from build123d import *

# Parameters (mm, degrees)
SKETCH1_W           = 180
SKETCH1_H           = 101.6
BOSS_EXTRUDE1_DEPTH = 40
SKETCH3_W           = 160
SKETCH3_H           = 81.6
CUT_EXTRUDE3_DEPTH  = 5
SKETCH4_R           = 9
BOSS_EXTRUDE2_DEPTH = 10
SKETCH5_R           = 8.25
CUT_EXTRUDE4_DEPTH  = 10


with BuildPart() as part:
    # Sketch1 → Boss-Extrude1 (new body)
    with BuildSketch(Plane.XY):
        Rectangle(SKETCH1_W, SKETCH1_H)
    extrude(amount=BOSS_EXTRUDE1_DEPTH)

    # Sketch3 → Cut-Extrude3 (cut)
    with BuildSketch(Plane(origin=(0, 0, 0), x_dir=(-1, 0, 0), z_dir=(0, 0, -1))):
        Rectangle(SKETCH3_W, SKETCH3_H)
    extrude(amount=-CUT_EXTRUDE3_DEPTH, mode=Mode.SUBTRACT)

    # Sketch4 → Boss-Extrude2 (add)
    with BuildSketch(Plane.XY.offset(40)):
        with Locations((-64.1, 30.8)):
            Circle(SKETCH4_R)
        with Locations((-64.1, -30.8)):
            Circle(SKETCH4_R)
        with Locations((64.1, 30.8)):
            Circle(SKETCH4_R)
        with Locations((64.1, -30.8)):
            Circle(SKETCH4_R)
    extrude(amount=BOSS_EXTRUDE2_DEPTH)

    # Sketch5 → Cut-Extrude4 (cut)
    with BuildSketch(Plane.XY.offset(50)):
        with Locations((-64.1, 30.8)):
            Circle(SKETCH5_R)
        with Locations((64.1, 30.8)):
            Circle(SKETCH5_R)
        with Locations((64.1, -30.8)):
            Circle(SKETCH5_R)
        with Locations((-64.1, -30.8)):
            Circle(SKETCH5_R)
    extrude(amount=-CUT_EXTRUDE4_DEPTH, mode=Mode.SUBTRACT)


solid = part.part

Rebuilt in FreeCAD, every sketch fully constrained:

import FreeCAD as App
import Part
import Sketcher
from FreeCAD import Vector
Q = App.Units.Quantity

doc = App.newDocument("Part")
body = doc.addObject("PartDesign::Body", "Body")

# Sketch on XY plane
sketch1 = body.newObject("Sketcher::SketchObject", "Sketch")
sketch1.AttachmentSupport = (doc.getObject("XY_Plane"), [""])
sketch1.MapMode = "FlatFace"
sketch1.addGeometry([
    Part.LineSegment(Vector(-90, 50.8, 0), Vector(-90, -50.8, 0)),
    Part.LineSegment(Vector(-90, -50.8, 0), Vector(90, -50.8, 0)),
    Part.LineSegment(Vector(90, -50.8, 0), Vector(90, 50.8, 0)),
    Part.LineSegment(Vector(90, 50.8, 0), Vector(-90, 50.8, 0)),
], False)
sketch1.addConstraint([
    Sketcher.Constraint("Coincident", 0, 2, 1, 1),
    Sketcher.Constraint("Coincident", 1, 2, 2, 1),
    Sketcher.Constraint("Coincident", 2, 2, 3, 1),
    Sketcher.Constraint("Coincident", 3, 2, 0, 1),
    Sketcher.Constraint("Vertical", 0),
    Sketcher.Constraint("Horizontal", 1),
    Sketcher.Constraint("Vertical", 2),
    Sketcher.Constraint("Horizontal", 3),
    Sketcher.Constraint("Symmetric", 0, 2, 2, 2, -1, 1),
    Sketcher.Constraint("DistanceX", 1, 1, 1, 2, Q("180 mm")),
    Sketcher.Constraint("DistanceY", 0, 2, 0, 1, Q("101.6 mm")),
])
pad1 = body.newObject("PartDesign::Pad", "Pad")
pad1.Profile = sketch1
pad1.Length = 40

# Sketch on XY plane
sketch2 = body.newObject("Sketcher::SketchObject", "Sketch001")
sketch2.AttachmentSupport = (doc.getObject("XY_Plane"), [""])
sketch2.MapMode = "FlatFace"
sketch2.addGeometry([
    Part.LineSegment(Vector(80, 40.8, 0), Vector(80, -40.8, 0)),
    Part.LineSegment(Vector(80, -40.8, 0), Vector(-80, -40.8, 0)),
    Part.LineSegment(Vector(-80, -40.8, 0), Vector(-80, 40.8, 0)),
    Part.LineSegment(Vector(-80, 40.8, 0), Vector(80, 40.8, 0)),
], False)
sketch2.addConstraint([
    Sketcher.Constraint("Coincident", 0, 2, 1, 1),
    Sketcher.Constraint("Coincident", 1, 2, 2, 1),
    Sketcher.Constraint("Coincident", 2, 2, 3, 1),
    Sketcher.Constraint("Coincident", 3, 2, 0, 1),
    Sketcher.Constraint("Vertical", 0),
    Sketcher.Constraint("Horizontal", 1),
    Sketcher.Constraint("Vertical", 2),
    Sketcher.Constraint("Horizontal", 3),
    Sketcher.Constraint("Symmetric", 0, 2, 2, 2, -1, 1),
    Sketcher.Constraint("DistanceX", 1, 2, 1, 1, Q("160 mm")),
    Sketcher.Constraint("DistanceY", 0, 2, 0, 1, Q("81.6 mm")),
])
pocket1 = body.newObject("PartDesign::Pocket", "Pocket")
pocket1.Profile = sketch2
pocket1.Length = 5
pocket1.Reversed = True

# Sketch on XY plane
sketch3 = body.newObject("Sketcher::SketchObject", "Sketch002")
sketch3.AttachmentSupport = (doc.getObject("XY_Plane"), [""])
sketch3.MapMode = "FlatFace"
sketch3.AttachmentOffset = App.Placement(Vector(0, 0, 40), App.Rotation())
sketch3.addGeometry([
    Part.Circle(Vector(-64.1, 30.8, 0), Vector(0, 0, 1), 9),
    Part.Circle(Vector(-64.1, -30.8, 0), Vector(0, 0, 1), 9),
    Part.Circle(Vector(64.1, 30.8, 0), Vector(0, 0, 1), 9),
    Part.Circle(Vector(64.1, -30.8, 0), Vector(0, 0, 1), 9),
], False)
sketch3.addConstraint([
    Sketcher.Constraint("Equal", 0, 1),
    Sketcher.Constraint("Equal", 1, 2),
    Sketcher.Constraint("Equal", 2, 3),
    Sketcher.Constraint("Symmetric", 1, 3, 2, 3, -1, 1),
    Sketcher.Constraint("Symmetric", 0, 3, 3, 3, -1, 1),
    Sketcher.Constraint("Symmetric", 0, 3, 2, 3, -2),
    Sketcher.Constraint("Diameter", 0, Q("18 mm")),
    Sketcher.Constraint("DistanceX", 0, 3, -1, 1, Q("64.1 mm")),
    Sketcher.Constraint("DistanceY", -1, 1, 0, 3, Q("30.8 mm")),
])
pad2 = body.newObject("PartDesign::Pad", "Pad001")
pad2.Profile = sketch3
pad2.Length = 10

# Sketch on XY plane
sketch4 = body.newObject("Sketcher::SketchObject", "Sketch003")
sketch4.AttachmentSupport = (doc.getObject("XY_Plane"), [""])
sketch4.MapMode = "FlatFace"
sketch4.AttachmentOffset = App.Placement(Vector(0, 0, 50), App.Rotation())
sketch4.addGeometry([
    Part.Circle(Vector(-64.1, 30.8, 0), Vector(0, 0, 1), 8.25),
    Part.Circle(Vector(64.1, 30.8, 0), Vector(0, 0, 1), 8.25),
    Part.Circle(Vector(64.1, -30.8, 0), Vector(0, 0, 1), 8.25),
    Part.Circle(Vector(-64.1, -30.8, 0), Vector(0, 0, 1), 8.25),
], False)
sketch4.addConstraint([
    Sketcher.Constraint("Equal", 0, 1),
    Sketcher.Constraint("Equal", 1, 2),
    Sketcher.Constraint("Equal", 2, 3),
    Sketcher.Constraint("Symmetric", 0, 3, 2, 3, -1, 1),
    Sketcher.Constraint("Symmetric", 1, 3, 3, 3, -1, 1),
    Sketcher.Constraint("Symmetric", 0, 3, 1, 3, -2),
    Sketcher.Constraint("Diameter", 0, Q("16.5 mm")),
    Sketcher.Constraint("DistanceX", 0, 3, -1, 1, Q("64.1 mm")),
    Sketcher.Constraint("DistanceY", -1, 1, 0, 3, Q("30.8 mm")),
])
pocket2 = body.newObject("PartDesign::Pocket", "Pocket001")
pocket2.Profile = sketch4
pocket2.Length = 10

doc.recompute()
